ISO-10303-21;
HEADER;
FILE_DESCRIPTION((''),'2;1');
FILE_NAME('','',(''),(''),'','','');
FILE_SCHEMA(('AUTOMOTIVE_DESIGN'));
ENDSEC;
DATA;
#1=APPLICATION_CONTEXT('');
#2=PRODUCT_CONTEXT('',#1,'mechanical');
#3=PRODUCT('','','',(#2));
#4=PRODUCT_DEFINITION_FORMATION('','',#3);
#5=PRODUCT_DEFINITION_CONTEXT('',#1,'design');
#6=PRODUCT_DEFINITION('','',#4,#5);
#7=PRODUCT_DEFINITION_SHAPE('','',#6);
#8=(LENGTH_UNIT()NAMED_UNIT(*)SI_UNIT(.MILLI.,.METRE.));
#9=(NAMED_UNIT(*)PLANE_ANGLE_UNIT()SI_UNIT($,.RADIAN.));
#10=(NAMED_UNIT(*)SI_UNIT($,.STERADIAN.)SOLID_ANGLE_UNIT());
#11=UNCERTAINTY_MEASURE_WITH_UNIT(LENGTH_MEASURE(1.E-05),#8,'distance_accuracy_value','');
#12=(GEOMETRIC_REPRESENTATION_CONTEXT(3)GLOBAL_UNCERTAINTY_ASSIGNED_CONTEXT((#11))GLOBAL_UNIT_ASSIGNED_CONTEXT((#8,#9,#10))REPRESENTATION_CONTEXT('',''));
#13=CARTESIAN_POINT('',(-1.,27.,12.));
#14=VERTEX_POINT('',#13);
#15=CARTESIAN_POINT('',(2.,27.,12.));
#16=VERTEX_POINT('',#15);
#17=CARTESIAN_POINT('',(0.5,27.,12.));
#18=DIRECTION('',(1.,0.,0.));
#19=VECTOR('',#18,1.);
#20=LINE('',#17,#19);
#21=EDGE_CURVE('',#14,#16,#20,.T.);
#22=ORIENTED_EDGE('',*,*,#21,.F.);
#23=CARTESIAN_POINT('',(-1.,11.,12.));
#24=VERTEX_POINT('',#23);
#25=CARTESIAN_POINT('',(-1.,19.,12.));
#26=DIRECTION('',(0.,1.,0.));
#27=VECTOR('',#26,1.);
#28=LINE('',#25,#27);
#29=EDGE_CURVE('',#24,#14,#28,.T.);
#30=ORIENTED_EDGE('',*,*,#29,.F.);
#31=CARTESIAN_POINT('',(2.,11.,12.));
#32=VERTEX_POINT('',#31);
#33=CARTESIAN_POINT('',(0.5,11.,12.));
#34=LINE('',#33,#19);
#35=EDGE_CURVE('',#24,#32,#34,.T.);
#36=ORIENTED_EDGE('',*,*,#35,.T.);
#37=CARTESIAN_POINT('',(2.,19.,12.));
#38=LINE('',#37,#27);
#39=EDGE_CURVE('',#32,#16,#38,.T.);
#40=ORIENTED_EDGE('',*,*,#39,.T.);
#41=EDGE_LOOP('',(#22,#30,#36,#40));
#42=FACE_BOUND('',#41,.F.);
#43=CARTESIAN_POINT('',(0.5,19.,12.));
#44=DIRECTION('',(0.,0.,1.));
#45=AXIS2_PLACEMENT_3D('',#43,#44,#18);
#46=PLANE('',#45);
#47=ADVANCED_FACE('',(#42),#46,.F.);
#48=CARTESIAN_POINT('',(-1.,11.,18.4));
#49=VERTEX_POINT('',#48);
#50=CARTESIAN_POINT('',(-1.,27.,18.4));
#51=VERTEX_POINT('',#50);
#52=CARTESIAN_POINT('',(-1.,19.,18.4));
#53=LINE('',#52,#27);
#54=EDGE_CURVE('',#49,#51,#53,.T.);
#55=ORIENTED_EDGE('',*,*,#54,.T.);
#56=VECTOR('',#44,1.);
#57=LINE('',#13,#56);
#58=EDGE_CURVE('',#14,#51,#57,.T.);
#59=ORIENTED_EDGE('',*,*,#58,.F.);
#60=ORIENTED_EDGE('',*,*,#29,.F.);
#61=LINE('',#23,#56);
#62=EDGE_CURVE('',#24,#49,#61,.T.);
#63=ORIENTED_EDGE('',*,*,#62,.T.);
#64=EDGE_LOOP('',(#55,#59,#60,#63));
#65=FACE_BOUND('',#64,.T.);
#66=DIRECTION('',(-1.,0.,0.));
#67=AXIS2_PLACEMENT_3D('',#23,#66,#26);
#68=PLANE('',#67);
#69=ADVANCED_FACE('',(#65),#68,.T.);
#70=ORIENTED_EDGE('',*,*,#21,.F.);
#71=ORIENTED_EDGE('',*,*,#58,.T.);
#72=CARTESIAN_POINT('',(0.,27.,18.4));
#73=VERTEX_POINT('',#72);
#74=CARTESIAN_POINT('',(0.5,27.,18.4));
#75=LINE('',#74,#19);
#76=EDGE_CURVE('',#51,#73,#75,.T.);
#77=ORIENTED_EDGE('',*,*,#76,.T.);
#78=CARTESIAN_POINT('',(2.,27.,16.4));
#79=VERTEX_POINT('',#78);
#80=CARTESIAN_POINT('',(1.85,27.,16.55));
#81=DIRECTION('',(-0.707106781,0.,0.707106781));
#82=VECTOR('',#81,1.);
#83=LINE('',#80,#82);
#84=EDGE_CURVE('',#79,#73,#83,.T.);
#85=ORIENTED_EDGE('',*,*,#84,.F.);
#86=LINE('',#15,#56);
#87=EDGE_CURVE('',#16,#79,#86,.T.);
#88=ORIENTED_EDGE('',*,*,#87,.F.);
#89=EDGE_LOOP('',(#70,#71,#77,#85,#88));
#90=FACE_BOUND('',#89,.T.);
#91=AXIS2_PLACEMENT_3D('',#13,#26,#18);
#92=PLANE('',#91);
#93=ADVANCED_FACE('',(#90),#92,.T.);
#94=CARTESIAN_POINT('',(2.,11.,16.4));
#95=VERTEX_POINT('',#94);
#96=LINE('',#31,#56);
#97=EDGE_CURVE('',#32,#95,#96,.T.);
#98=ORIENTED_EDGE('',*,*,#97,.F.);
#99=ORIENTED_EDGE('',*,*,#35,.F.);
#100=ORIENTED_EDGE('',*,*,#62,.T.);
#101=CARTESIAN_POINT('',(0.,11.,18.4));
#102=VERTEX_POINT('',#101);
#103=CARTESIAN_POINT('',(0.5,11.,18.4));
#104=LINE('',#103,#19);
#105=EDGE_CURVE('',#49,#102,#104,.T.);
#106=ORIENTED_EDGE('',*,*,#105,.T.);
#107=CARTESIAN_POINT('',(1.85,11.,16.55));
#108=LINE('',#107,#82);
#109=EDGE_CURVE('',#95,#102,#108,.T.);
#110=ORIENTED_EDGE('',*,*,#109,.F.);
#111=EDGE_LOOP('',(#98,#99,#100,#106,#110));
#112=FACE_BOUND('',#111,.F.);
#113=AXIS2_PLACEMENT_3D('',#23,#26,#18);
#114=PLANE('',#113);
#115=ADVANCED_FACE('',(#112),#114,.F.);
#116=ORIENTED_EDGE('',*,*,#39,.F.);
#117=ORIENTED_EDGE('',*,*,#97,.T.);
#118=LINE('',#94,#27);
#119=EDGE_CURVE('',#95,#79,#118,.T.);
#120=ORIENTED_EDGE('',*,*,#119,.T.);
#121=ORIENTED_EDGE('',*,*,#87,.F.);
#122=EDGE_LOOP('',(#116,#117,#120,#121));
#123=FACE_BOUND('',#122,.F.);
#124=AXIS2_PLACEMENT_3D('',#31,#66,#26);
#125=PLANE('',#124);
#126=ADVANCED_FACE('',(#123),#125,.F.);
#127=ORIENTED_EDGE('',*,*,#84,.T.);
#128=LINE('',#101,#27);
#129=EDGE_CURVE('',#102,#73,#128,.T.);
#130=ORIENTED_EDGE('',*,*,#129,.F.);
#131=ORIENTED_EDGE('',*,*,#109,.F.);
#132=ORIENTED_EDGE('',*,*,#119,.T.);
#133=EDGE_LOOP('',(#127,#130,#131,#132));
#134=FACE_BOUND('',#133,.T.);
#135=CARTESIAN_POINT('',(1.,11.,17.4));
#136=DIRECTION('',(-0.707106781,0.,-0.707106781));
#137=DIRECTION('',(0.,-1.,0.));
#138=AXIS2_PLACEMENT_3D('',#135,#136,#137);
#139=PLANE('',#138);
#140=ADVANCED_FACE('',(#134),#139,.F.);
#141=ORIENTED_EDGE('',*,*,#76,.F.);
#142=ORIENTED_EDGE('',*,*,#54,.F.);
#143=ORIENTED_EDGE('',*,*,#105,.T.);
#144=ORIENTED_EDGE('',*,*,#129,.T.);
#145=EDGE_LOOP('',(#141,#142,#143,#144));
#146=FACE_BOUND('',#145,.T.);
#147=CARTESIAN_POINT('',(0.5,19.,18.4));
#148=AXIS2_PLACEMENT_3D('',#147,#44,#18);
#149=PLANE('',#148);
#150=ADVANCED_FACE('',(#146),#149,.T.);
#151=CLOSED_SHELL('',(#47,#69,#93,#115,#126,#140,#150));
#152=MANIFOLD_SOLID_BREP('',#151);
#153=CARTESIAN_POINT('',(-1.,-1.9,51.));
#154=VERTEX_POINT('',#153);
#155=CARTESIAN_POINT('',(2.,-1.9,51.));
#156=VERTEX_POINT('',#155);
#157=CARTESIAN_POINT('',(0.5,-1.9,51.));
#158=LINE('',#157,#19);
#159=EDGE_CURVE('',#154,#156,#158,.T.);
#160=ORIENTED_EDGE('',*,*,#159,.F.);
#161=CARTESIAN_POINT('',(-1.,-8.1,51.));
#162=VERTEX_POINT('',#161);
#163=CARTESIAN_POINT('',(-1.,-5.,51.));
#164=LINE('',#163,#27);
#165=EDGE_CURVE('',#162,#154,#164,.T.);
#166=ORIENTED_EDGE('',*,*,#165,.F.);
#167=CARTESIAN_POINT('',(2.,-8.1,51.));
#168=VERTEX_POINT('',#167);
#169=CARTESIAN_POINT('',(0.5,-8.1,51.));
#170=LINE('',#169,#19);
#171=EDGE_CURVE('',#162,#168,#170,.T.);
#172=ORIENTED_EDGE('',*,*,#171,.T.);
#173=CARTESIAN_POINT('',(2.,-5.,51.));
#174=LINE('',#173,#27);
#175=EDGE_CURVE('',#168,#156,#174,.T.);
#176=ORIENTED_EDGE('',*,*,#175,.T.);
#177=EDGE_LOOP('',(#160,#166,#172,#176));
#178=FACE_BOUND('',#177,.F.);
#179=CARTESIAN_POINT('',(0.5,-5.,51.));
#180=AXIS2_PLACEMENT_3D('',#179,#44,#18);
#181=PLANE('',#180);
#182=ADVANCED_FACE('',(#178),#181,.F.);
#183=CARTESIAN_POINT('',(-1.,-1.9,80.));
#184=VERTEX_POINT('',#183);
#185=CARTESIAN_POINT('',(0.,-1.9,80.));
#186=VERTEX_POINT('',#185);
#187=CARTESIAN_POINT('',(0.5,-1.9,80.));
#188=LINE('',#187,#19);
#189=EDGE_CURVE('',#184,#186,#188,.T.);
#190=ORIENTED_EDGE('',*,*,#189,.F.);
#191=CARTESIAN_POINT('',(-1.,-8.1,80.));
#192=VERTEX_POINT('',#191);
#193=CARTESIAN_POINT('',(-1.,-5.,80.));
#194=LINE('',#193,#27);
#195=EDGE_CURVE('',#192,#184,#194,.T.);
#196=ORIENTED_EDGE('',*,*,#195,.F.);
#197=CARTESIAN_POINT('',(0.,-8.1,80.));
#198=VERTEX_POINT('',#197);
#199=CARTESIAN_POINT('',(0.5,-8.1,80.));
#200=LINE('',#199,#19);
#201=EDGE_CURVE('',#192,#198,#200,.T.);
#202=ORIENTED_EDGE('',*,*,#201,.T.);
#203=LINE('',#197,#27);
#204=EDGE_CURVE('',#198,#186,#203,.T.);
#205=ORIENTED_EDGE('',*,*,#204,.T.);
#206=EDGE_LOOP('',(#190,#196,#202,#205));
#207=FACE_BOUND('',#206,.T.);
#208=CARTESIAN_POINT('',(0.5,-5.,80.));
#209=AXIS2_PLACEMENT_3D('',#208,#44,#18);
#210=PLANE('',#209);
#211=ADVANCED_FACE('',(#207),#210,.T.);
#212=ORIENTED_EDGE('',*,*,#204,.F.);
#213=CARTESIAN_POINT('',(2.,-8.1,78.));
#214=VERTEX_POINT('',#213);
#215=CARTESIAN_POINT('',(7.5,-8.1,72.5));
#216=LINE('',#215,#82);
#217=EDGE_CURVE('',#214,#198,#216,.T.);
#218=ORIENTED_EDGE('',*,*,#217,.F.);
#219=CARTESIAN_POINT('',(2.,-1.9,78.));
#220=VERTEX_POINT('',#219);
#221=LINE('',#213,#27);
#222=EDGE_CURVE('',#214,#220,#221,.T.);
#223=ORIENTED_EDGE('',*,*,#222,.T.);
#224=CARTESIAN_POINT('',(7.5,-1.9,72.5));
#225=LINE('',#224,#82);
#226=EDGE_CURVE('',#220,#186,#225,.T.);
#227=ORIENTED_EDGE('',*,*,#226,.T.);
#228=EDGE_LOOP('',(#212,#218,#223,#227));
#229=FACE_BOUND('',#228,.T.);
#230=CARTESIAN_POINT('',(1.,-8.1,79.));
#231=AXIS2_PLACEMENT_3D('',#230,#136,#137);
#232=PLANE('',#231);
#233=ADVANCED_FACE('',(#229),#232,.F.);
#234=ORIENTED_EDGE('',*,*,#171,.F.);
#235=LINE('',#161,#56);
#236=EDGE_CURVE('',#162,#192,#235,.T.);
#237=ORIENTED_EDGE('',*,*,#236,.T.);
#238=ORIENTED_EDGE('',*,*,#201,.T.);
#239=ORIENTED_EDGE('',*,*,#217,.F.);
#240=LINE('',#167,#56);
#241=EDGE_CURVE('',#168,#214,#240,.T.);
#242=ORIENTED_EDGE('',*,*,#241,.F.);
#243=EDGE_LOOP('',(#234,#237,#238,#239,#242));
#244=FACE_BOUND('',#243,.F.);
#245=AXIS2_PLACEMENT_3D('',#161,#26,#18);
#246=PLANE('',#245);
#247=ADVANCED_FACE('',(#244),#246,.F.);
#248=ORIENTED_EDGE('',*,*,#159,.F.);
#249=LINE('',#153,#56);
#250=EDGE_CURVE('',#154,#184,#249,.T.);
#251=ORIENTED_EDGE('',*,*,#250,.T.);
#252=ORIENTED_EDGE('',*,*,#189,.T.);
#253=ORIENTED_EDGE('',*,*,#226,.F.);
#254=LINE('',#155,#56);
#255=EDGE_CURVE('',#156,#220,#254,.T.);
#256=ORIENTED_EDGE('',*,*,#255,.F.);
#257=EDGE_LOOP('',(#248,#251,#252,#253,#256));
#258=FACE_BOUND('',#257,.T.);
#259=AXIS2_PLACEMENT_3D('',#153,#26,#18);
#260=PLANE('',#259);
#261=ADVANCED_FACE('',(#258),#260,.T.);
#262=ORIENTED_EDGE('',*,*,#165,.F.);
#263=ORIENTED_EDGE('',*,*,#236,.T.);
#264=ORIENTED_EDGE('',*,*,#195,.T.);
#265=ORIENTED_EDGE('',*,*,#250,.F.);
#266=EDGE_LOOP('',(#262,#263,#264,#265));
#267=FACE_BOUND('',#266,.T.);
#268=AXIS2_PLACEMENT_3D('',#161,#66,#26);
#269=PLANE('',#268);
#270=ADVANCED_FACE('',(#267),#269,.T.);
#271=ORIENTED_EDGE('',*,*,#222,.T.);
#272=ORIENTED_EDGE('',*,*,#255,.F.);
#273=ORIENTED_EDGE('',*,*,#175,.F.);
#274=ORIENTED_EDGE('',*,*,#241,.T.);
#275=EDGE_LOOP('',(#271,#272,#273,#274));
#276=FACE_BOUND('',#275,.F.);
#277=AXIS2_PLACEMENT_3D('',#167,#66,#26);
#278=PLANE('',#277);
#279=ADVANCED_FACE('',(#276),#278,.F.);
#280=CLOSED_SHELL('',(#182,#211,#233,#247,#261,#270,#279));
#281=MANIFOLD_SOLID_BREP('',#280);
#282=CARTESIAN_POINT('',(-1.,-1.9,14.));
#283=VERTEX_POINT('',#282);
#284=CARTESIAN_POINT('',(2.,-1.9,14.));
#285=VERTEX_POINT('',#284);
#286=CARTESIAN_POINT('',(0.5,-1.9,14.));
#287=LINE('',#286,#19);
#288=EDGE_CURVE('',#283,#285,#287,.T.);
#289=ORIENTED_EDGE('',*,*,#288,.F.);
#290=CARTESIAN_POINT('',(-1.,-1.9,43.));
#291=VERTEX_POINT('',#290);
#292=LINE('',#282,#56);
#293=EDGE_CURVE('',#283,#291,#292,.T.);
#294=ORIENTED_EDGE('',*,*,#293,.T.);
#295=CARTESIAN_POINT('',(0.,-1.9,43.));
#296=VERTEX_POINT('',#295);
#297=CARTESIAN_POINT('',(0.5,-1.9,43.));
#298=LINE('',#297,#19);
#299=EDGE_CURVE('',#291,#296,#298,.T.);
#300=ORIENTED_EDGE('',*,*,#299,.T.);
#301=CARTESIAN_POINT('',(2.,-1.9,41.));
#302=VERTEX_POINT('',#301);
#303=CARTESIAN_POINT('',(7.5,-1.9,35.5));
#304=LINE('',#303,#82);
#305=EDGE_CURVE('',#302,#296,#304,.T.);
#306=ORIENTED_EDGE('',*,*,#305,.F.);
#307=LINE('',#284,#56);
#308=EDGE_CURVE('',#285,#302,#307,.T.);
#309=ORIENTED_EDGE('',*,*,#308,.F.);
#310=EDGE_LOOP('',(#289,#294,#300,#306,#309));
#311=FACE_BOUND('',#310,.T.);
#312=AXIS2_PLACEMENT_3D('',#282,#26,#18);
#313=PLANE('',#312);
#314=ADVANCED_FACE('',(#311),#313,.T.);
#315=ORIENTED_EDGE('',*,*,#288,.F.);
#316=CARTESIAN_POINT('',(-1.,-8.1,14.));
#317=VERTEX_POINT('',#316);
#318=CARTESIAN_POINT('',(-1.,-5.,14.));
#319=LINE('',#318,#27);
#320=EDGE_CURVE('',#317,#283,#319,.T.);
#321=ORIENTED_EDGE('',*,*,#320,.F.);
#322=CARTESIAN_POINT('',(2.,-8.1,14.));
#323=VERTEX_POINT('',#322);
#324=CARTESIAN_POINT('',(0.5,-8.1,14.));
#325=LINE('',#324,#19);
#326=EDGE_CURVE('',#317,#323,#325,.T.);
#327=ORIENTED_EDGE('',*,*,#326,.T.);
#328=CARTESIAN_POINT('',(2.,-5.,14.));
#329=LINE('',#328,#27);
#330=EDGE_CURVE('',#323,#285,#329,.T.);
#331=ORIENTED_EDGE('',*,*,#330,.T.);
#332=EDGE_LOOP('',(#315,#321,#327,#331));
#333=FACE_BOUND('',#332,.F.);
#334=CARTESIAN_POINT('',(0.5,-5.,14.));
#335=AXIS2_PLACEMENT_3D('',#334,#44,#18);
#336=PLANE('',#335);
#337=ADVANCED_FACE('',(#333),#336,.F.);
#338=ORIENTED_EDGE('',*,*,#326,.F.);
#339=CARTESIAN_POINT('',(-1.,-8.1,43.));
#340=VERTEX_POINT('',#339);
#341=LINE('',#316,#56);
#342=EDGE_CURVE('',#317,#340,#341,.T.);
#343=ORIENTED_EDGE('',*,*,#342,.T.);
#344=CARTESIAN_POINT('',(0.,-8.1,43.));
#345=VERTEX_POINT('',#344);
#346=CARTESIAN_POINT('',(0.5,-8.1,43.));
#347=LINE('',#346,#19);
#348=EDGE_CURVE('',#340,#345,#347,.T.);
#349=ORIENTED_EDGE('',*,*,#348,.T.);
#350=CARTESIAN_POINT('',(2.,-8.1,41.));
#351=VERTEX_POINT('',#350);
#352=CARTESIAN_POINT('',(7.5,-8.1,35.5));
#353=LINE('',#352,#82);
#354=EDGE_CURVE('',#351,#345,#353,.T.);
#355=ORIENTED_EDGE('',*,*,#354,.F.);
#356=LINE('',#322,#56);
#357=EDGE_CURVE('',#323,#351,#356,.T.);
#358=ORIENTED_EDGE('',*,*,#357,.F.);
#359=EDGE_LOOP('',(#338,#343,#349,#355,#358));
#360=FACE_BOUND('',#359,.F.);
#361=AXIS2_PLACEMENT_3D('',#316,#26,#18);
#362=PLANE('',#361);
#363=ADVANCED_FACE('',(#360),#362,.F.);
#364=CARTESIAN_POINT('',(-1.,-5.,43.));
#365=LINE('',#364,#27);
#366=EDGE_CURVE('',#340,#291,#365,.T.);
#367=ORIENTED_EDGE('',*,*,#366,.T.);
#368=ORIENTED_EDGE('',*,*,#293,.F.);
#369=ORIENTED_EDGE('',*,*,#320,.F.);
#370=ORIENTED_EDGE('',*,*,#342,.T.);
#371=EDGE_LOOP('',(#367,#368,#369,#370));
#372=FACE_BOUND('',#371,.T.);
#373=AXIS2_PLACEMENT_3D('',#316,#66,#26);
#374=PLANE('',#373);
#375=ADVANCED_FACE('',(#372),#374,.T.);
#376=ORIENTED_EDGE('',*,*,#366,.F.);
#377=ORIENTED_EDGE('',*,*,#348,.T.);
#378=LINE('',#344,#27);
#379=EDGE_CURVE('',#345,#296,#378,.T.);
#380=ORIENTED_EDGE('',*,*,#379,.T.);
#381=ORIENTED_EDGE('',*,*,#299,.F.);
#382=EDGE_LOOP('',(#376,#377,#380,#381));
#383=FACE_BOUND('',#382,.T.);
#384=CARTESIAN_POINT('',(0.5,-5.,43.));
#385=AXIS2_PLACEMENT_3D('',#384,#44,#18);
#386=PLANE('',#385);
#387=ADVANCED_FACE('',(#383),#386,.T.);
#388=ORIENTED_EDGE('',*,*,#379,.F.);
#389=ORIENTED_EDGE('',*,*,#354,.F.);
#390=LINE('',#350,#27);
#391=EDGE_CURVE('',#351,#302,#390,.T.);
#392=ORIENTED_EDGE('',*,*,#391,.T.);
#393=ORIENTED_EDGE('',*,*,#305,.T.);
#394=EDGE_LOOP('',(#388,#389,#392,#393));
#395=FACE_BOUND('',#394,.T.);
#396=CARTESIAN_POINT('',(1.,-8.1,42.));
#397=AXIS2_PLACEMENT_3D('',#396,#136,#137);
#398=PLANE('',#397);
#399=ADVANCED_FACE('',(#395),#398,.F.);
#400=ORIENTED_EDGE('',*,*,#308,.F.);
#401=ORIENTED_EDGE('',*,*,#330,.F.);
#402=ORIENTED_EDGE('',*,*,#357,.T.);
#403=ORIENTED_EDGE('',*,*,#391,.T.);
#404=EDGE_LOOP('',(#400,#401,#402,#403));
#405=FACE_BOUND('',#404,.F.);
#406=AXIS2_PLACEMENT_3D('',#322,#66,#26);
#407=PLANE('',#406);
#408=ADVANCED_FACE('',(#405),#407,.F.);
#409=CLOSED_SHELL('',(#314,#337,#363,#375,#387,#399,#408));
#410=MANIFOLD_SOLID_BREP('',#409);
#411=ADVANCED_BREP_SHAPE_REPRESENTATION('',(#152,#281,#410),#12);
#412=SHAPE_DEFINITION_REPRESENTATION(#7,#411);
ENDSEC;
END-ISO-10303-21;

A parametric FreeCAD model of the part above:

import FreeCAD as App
import Part
import Sketcher


def edges_at(feature, points):
    """Names of the edges that pass closest to the given points."""
    edges = feature.Shape.Edges
    near = lambda p: min(range(len(edges)), key=lambda i: edges[i].distToShape(Part.Vertex(*p))[0])
    return sorted({f"Edge{near(p) + 1}" for p in points})


def add_polygon(sketch, points):
    """Adds a closed chain of lines whose ends are joined by coincident constraints."""
    first, n = sketch.GeometryCount, len(points)
    for a, b in zip(points, points[1:] + points[:1]):
        sketch.addGeometry(Part.LineSegment(App.Vector(*a, 0), App.Vector(*b, 0)), False)
    for i in range(n):
        sketch.addConstraint(Sketcher.Constraint("Coincident", first + i, 2, first + (i + 1) % n, 1))

doc = App.newDocument("Part")
body = doc.addObject("PartDesign::Body", "Body")

sketch1 = body.newObject("Sketcher::SketchObject", "Sketch")
sketch1.AttachmentSupport = (doc.getObject("XY_Plane"), [""])
sketch1.MapMode = "FlatFace"
sketch1.AttachmentOffset = App.Placement(App.Vector(0, 0, 14), App.Rotation())
add_polygon(sketch1, [(-1, -1.9), (-1, -8.1), (2, -8.1), (2, -1.9)])
sketch1.addConstraint(Sketcher.Constraint("Vertical", 0))
sketch1.addConstraint(Sketcher.Constraint("Horizontal", 1))
sketch1.addConstraint(Sketcher.Constraint("Vertical", 2))
sketch1.addConstraint(Sketcher.Constraint("Horizontal", 3))
sketch1.addConstraint(Sketcher.Constraint("DistanceX", 1, 1, 1, 2, 3.0))
sketch1.addConstraint(Sketcher.Constraint("DistanceY", 0, 2, 0, 1, 6.2))
sketch1.addConstraint(Sketcher.Constraint("DistanceX", 0, 2, -1, 1, 1.0))
sketch1.addConstraint(Sketcher.Constraint("DistanceY", 0, 2, -1, 1, 8.1))
pad1 = body.newObject("PartDesign::Pad", "Pad")
pad1.Profile = sketch1
pad1.Length = 29
doc.recompute()

chamfer = body.newObject("PartDesign::Chamfer", "Chamfer")
chamfer.Base = (pad1, edges_at(pad1, [(2, -5, 43)]))
chamfer.Size = 2
body2 = doc.addObject("PartDesign::Body", "Body001")

sketch2 = body2.newObject("Sketcher::SketchObject", "Sketch001")
sketch2.AttachmentSupport = (doc.getObject("XY_Plane001"), [""])
sketch2.MapMode = "FlatFace"
sketch2.AttachmentOffset = App.Placement(App.Vector(0, 0, 12), App.Rotation())
add_polygon(sketch2, [(-1, 27), (-1, 11), (2, 11), (2, 27)])
sketch2.addConstraint(Sketcher.Constraint("Vertical", 0))
sketch2.addConstraint(Sketcher.Constraint("Horizontal", 1))
sketch2.addConstraint(Sketcher.Constraint("Vertical", 2))
sketch2.addConstraint(Sketcher.Constraint("Horizontal", 3))
sketch2.addConstraint(Sketcher.Constraint("DistanceX", 1, 1, 1, 2, 3.0))
sketch2.addConstraint(Sketcher.Constraint("DistanceY", 0, 2, 0, 1, 16.0))
sketch2.addConstraint(Sketcher.Constraint("DistanceX", 0, 2, -1, 1, 1.0))
sketch2.addConstraint(Sketcher.Constraint("DistanceY", -1, 1, 0, 2, 11.0))
pad2 = body2.newObject("PartDesign::Pad", "Pad001")
pad2.Profile = sketch2
pad2.Length = 6.4
doc.recompute()

chamfer2 = body2.newObject("PartDesign::Chamfer", "Chamfer001")
chamfer2.Base = (pad2, edges_at(pad2, [(2, 19, 18.4)]))
chamfer2.Size = 2
body3 = doc.addObject("PartDesign::Body", "Body002")
body3.AllowCompound = True

sketch3 = body3.newObject("Sketcher::SketchObject", "Sketch002")
sketch3.AttachmentSupport = (doc.getObject("XY_Plane002"), [""])
sketch3.MapMode = "FlatFace"
sketch3.AttachmentOffset = App.Placement(App.Vector(0, 0, 51), App.Rotation())
add_polygon(sketch3, [(-1, -1.9), (-1, -8.1), (2, -8.1), (2, -1.9)])
sketch3.addConstraint(Sketcher.Constraint("Vertical", 0))
sketch3.addConstraint(Sketcher.Constraint("Horizontal", 1))
sketch3.addConstraint(Sketcher.Constraint("Vertical", 2))
sketch3.addConstraint(Sketcher.Constraint("Horizontal", 3))
sketch3.addConstraint(Sketcher.Constraint("DistanceX", 1, 1, 1, 2, 3.0))
sketch3.addConstraint(Sketcher.Constraint("DistanceY", 0, 2, 0, 1, 6.2))
sketch3.addConstraint(Sketcher.Constraint("DistanceX", 0, 2, -1, 1, 1.0))
sketch3.addConstraint(Sketcher.Constraint("DistanceY", 0, 2, -1, 1, 8.1))
pad3 = body3.newObject("PartDesign::Pad", "Pad002")
pad3.Profile = sketch3
pad3.Length = 29
doc.recompute()

chamfer3 = body3.newObject("PartDesign::Chamfer", "Chamfer002")
chamfer3.Base = (pad3, edges_at(pad3, [(2, -5, 80)]))
chamfer3.Size = 2
doc.recompute()

boolean = body3.newObject("PartDesign::Boolean", "Boolean")
boolean.Type = "Fuse"
boolean.addObjects([body])
doc.recompute()

boolean2 = body3.newObject("PartDesign::Boolean", "Boolean001")
boolean2.Type = "Fuse"
boolean2.addObjects([body2])

doc.recompute()
